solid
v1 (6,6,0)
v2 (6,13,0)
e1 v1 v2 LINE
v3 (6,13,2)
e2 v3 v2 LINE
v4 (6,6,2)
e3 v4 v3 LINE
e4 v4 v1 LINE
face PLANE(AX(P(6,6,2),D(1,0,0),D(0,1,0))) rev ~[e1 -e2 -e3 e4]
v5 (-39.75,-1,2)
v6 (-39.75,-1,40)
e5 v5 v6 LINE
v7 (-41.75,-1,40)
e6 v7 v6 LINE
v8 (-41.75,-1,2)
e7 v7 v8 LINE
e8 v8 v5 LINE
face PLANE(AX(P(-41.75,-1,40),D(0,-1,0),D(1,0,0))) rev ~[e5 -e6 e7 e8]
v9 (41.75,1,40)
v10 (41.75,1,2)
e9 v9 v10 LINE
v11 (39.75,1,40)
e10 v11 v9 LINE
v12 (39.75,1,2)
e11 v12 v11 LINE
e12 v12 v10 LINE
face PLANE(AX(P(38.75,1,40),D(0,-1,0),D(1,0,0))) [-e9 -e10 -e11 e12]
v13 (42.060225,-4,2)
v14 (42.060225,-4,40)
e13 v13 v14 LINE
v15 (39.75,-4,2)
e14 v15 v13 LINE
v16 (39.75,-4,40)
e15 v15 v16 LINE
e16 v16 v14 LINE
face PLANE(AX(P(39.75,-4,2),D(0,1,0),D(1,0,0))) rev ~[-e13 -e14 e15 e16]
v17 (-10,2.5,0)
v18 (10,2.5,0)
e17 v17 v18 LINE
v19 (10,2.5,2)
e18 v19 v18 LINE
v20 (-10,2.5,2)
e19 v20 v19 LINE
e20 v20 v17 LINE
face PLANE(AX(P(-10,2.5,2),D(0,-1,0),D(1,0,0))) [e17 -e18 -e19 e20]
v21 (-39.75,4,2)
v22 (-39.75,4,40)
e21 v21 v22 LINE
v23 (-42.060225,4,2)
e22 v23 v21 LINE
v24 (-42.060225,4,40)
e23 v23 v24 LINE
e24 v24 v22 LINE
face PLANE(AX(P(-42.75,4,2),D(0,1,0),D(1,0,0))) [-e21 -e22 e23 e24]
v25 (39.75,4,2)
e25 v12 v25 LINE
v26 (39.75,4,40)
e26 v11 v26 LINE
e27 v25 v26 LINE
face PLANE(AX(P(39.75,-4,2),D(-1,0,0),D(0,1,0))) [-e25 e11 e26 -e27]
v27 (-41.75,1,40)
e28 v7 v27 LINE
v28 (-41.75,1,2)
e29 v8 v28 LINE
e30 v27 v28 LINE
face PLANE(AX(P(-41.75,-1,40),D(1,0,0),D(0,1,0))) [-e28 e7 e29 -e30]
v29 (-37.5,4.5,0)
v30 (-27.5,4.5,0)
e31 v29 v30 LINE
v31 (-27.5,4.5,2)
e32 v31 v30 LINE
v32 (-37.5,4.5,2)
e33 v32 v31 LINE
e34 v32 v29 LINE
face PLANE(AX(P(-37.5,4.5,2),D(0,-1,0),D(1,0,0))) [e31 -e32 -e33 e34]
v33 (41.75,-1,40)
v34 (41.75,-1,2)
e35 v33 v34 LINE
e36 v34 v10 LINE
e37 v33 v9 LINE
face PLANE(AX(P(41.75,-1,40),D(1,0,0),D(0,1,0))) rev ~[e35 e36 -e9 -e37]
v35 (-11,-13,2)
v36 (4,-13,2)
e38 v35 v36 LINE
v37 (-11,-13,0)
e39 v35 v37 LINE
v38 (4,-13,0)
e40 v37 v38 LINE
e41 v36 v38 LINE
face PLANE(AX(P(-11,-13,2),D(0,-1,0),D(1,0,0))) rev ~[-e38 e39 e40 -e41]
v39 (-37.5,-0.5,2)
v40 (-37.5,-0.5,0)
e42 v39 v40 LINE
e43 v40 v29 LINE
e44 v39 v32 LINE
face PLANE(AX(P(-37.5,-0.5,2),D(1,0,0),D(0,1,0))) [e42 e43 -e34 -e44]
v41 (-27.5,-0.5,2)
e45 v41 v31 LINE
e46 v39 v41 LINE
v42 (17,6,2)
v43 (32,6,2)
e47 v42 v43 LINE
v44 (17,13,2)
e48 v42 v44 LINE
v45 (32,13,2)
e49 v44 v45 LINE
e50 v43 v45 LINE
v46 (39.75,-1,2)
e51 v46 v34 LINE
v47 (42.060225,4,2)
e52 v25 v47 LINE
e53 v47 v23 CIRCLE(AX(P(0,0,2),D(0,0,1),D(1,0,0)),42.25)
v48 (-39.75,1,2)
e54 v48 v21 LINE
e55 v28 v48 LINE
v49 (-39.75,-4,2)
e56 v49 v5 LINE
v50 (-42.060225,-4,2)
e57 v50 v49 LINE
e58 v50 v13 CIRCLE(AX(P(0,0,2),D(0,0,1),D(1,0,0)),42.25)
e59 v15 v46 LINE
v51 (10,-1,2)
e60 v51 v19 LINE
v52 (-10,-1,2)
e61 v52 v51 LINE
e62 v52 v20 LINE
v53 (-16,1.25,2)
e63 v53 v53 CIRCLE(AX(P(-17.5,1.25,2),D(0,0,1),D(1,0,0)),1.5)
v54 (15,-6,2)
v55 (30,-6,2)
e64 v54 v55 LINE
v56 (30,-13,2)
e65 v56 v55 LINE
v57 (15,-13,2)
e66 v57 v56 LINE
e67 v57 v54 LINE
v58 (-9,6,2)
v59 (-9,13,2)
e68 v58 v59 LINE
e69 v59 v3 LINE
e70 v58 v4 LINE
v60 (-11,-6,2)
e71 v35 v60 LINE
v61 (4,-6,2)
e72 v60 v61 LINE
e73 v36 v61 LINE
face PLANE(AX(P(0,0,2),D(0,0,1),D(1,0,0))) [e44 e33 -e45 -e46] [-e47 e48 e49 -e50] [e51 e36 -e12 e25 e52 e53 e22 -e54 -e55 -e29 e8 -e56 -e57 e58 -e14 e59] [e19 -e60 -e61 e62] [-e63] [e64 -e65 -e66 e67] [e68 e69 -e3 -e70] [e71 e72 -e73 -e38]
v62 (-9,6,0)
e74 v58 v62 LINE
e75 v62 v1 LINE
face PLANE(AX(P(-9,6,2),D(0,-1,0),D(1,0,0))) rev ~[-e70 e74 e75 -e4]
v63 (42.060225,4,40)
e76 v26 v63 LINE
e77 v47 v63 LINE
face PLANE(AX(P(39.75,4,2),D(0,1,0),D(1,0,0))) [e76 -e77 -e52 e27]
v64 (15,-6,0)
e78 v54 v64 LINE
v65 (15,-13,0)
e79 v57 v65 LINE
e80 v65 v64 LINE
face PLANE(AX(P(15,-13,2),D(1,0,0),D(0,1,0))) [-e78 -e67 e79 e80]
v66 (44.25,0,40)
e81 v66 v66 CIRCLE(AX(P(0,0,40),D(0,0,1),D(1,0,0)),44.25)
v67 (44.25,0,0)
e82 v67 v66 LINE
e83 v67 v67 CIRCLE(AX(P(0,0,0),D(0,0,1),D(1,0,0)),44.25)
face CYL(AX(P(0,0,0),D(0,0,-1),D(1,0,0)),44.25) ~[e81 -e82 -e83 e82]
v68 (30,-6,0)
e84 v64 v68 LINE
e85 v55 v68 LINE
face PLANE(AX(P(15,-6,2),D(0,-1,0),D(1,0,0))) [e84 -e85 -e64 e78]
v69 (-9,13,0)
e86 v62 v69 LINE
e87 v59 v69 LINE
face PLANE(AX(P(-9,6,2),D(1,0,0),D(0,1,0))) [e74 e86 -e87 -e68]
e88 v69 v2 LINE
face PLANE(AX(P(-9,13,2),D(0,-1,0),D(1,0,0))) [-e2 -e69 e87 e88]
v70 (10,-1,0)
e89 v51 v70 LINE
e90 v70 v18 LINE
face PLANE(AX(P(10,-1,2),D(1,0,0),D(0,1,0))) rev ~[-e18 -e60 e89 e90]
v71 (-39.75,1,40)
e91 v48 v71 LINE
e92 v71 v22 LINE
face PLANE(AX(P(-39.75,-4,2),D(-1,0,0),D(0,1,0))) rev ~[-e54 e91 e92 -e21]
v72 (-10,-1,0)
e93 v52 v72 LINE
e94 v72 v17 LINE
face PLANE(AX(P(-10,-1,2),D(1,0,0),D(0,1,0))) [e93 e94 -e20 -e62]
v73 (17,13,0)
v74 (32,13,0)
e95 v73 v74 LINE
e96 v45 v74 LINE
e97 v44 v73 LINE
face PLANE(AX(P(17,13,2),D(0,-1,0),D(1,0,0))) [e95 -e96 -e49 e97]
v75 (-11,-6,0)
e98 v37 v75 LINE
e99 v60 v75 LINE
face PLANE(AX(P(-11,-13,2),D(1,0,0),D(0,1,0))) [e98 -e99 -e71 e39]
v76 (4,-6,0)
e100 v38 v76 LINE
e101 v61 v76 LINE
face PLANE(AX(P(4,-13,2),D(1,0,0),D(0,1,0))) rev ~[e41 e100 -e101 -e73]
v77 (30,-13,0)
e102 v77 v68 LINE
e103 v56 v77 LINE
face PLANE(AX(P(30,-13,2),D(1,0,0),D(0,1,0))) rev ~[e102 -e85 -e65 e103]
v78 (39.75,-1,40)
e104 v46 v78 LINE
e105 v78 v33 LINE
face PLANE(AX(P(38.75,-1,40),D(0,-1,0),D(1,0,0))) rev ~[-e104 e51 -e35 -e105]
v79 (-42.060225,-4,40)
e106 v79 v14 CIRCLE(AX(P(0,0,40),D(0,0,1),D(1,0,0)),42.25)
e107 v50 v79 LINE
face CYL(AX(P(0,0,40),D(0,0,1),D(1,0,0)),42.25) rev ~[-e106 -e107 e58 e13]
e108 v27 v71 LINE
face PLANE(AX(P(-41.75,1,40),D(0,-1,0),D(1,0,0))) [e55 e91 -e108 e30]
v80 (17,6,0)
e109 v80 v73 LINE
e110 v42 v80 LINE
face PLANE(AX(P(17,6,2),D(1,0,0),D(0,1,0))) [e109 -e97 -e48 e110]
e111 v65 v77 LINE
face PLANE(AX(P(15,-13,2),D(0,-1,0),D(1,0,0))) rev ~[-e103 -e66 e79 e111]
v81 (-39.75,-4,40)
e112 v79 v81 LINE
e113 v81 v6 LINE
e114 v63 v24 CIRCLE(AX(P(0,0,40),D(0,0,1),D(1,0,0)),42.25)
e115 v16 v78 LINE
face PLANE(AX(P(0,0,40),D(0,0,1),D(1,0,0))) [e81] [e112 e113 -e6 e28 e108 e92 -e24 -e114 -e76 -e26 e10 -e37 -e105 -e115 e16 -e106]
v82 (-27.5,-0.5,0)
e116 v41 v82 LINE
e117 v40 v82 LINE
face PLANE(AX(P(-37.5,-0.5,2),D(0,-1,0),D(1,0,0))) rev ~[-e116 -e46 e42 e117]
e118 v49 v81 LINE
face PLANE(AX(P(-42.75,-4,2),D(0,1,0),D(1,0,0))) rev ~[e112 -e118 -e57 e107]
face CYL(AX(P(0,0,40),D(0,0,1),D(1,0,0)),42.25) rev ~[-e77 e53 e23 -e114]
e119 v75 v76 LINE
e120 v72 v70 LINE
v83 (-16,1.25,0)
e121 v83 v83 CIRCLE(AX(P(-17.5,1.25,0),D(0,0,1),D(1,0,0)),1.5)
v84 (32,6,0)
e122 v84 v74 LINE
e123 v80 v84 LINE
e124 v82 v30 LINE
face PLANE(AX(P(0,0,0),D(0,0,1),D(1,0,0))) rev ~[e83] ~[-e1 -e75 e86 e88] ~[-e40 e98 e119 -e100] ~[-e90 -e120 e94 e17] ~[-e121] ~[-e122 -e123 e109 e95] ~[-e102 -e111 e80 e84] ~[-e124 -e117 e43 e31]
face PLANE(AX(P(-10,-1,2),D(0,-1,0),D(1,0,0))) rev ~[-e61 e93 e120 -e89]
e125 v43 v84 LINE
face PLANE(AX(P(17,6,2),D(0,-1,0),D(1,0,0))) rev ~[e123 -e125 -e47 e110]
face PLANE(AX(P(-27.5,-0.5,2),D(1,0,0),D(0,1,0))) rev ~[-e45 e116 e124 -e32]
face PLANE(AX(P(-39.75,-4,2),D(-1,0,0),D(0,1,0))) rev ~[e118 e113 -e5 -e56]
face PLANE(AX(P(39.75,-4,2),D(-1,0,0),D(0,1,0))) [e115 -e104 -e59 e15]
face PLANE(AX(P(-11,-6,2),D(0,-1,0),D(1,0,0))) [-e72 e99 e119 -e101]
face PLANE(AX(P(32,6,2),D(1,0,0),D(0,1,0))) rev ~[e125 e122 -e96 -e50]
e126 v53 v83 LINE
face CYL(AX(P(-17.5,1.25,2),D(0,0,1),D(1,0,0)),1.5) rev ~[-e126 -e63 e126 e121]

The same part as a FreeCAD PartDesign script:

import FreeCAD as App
import Part
import Sketcher

V = App.Vector

doc = App.newDocument("Part")
body = doc.addObject("PartDesign::Body", "Body")

sketch1 = doc.addObject("Sketcher::SketchObject", "Sketch")
body.addObject(sketch1)
sketch1.AttachmentSupport = (doc.XY_Plane, [""])
sketch1.MapMode = "FlatFace"
sketch1.addGeometry(Part.Circle(V(0, 0, 0), V(0, 0, 1), 44), False)
sketch1.addConstraint([
    Sketcher.Constraint("Coincident", 0, 3, -1, 1),
    Sketcher.Constraint("Diameter", 0, 88.5),
])
pad1 = doc.addObject("PartDesign::Pad", "Pad")
body.addObject(pad1)
pad1.Profile = sketch1
pad1.Length = 40

sketch2 = doc.addObject("Sketcher::SketchObject", "Sketch001")
body.addObject(sketch2)
sketch2.AttachmentSupport = (doc.XY_Plane, [""])
sketch2.MapMode = "FlatFace"
sketch2.AttachmentOffset = App.Placement(V(0, 0, 40), App.Rotation())
sketch2.addGeometry(Part.Circle(V(0, 0, 0), V(0, 0, 1), 42), False)
sketch2.addConstraint([
    Sketcher.Constraint("Coincident", 0, 3, -1, 1),
    Sketcher.Constraint("Diameter", 0, 84.5),
])
pocket1 = doc.addObject("PartDesign::Pocket", "Pocket")
body.addObject(pocket1)
pocket1.Profile = sketch2
pocket1.Length = 38

sketch3 = doc.addObject("Sketcher::SketchObject", "Sketch002")
body.addObject(sketch3)
sketch3.AttachmentSupport = (doc.XY_Plane, [""])
sketch3.MapMode = "FlatFace"
sketch3.AttachmentOffset = App.Placement(V(0, 0, 2), App.Rotation())
sketch3.addGeometry([
    Part.LineSegment(V(-42.8, 4, 0), V(-42.8, -4, 0)),
    Part.LineSegment(V(-42.8, -4, 0), V(-39.8, -4, 0)),
    Part.LineSegment(V(-39.8, -4, 0), V(-39.8, 4, 0)),
    Part.LineSegment(V(-39.8, 4, 0), V(-42.8, 4, 0)),
    Part.LineSegment(V(39.8, 4, 0), V(39.8, -4, 0)),
    Part.LineSegment(V(39.8, -4, 0), V(42.8, -4, 0)),
    Part.LineSegment(V(42.8, -4, 0), V(42.8, 4, 0)),
    Part.LineSegment(V(42.8, 4, 0), V(39.8, 4, 0)),
], False)
sketch3.addConstraint([
    Sketcher.Constraint("Coincident", 0, 2, 1, 1),
    Sketcher.Constraint("Coincident", 1, 2, 2, 1),
    Sketcher.Constraint("Coincident", 2, 2, 3, 1),
    Sketcher.Constraint("Coincident", 3, 2, 0, 1),
    Sketcher.Constraint("Coincident", 4, 2, 5, 1),
    Sketcher.Constraint("Coincident", 5, 2, 6, 1),
    Sketcher.Constraint("Coincident", 6, 2, 7, 1),
    Sketcher.Constraint("Coincident", 7, 2, 4, 1),
    Sketcher.Constraint("Vertical", 0),
    Sketcher.Constraint("Horizontal", 1),
    Sketcher.Constraint("Vertical", 2),
    Sketcher.Constraint("Horizontal", 3),
    Sketcher.Constraint("Vertical", 4),
    Sketcher.Constraint("Horizontal", 5),
    Sketcher.Constraint("Vertical", 6),
    Sketcher.Constraint("Horizontal", 7),
    Sketcher.Constraint("Symmetric", 2, 2, 4, 2, -1, 1),
    Sketcher.Constraint("Symmetric", 0, 2, 6, 2, -1, 1),
    Sketcher.Constraint("Horizontal", 1, 2, 4, 2),
    Sketcher.Constraint("DistanceX", 1, 1, 1, 2, 3.0),
    Sketcher.Constraint("DistanceY", 0, 2, 0, 1, 8.0),
    Sketcher.Constraint("DistanceX", 1, 2, 4, 2, 79.5),
])
pad2 = doc.addObject("PartDesign::Pad", "Pad001")
body.addObject(pad2)
pad2.Profile = sketch3
pad2.Length = 38

sketch4 = doc.addObject("Sketcher::SketchObject", "Sketch003")
body.addObject(sketch4)
sketch4.AttachmentSupport = (doc.XY_Plane, [""])
sketch4.MapMode = "FlatFace"
sketch4.AttachmentOffset = App.Placement(V(0, 0, 40), App.Rotation())
sketch4.addGeometry([
    Part.LineSegment(V(-41.8, 1, 0), V(-41.8, -1, 0)),
    Part.LineSegment(V(-41.8, -1, 0), V(-38.8, -1, 0)),
    Part.LineSegment(V(-38.8, -1, 0), V(-38.8, 1, 0)),
    Part.LineSegment(V(-38.8, 1, 0), V(-41.8, 1, 0)),
    Part.LineSegment(V(38.8, 1, 0), V(38.8, -1, 0)),
    Part.LineSegment(V(38.8, -1, 0), V(41.8, -1, 0)),
    Part.LineSegment(V(41.8, -1, 0), V(41.8, 1, 0)),
    Part.LineSegment(V(41.8, 1, 0), V(38.8, 1, 0)),
], False)
sketch4.addConstraint([
    Sketcher.Constraint("Coincident", 0, 2, 1, 1),
    Sketcher.Constraint("Coincident", 1, 2, 2, 1),
    Sketcher.Constraint("Coincident", 2, 2, 3, 1),
    Sketcher.Constraint("Coincident", 3, 2, 0, 1),
    Sketcher.Constraint("Coincident", 4, 2, 5, 1),
    Sketcher.Constraint("Coincident", 5, 2, 6, 1),
    Sketcher.Constraint("Coincident", 6, 2, 7, 1),
    Sketcher.Constraint("Coincident", 7, 2, 4, 1),
    Sketcher.Constraint("Vertical", 0),
    Sketcher.Constraint("Horizontal", 1),
    Sketcher.Constraint("Vertical", 2),
    Sketcher.Constraint("Horizontal", 3),
    Sketcher.Constraint("Vertical", 4),
    Sketcher.Constraint("Horizontal", 5),
    Sketcher.Constraint("Vertical", 6),
    Sketcher.Constraint("Horizontal", 7),
    Sketcher.Constraint("Symmetric", 2, 2, 4, 2, -1, 1),
    Sketcher.Constraint("Symmetric", 0, 2, 6, 2, -1, 1),
    Sketcher.Constraint("Horizontal", 1, 2, 4, 2),
    Sketcher.Constraint("DistanceX", 1, 1, 1, 2, 3.0),
    Sketcher.Constraint("DistanceY", 0, 2, 0, 1, 2.0),
    Sketcher.Constraint("DistanceX", 1, 2, 4, 2, 77.5),
])
pocket2 = doc.addObject("PartDesign::Pocket", "Pocket001")
body.addObject(pocket2)
pocket2.Profile = sketch4
pocket2.Length = 38

sketch5 = doc.addObject("Sketcher::SketchObject", "Sketch004")
body.addObject(sketch5)
sketch5.AttachmentSupport = (doc.XY_Plane, [""])
sketch5.MapMode = "FlatFace"
sketch5.AttachmentOffset = App.Placement(V(0, 0, 2), App.Rotation())
sketch5.addGeometry([
    Part.Circle(V(-17.5, 1.2, 0), V(0, 0, 1), 1.5),
    Part.LineSegment(V(-10, 2.5, 0), V(-10, -1, 0)),
    Part.LineSegment(V(-10, -1, 0), V(10, -1, 0)),
    Part.LineSegment(V(10, -1, 0), V(10, 2.5, 0)),
    Part.LineSegment(V(10, 2.5, 0), V(-10, 2.5, 0)),
    Part.LineSegment(V(-37.5, 4.5, 0), V(-37.5, -0.5, 0)),
    Part.LineSegment(V(-37.5, -0.5, 0), V(-27.5, -0.5, 0)),
    Part.LineSegment(V(-27.5, -0.5, 0), V(-27.5, 4.5, 0)),
    Part.LineSegment(V(-27.5, 4.5, 0), V(-37.5, 4.5, 0)),
    Part.LineSegment(V(-11, -6, 0), V(-11, -13, 0)),
    Part.LineSegment(V(-11, -13, 0), V(4, -13, 0)),
    Part.LineSegment(V(4, -13, 0), V(4, -6, 0)),
    Part.LineSegment(V(4, -6, 0), V(-11, -6, 0)),
    Part.LineSegment(V(15, -6, 0), V(15, -13, 0)),
    Part.LineSegment(V(15, -13, 0), V(30, -13, 0)),
    Part.LineSegment(V(30, -13, 0), V(30, -6, 0)),
    Part.LineSegment(V(30, -6, 0), V(15, -6, 0)),
    Part.LineSegment(V(-9, 13, 0), V(-9, 6, 0)),
    Part.LineSegment(V(-9, 6, 0), V(6, 6, 0)),
    Part.LineSegment(V(6, 6, 0), V(6, 13, 0)),
    Part.LineSegment(V(6, 13, 0), V(-9, 13, 0)),
    Part.LineSegment(V(17, 13, 0), V(17, 6, 0)),
    Part.LineSegment(V(17, 6, 0), V(32, 6, 0)),
    Part.LineSegment(V(32, 6, 0), V(32, 13, 0)),
    Part.LineSegment(V(32, 13, 0), V(17, 13, 0)),
], False)
sketch5.addConstraint([
    Sketcher.Constraint("Coincident", 1, 2, 2, 1),
    Sketcher.Constraint("Coincident", 2, 2, 3, 1),
    Sketcher.Constraint("Coincident", 3, 2, 4, 1),
    Sketcher.Constraint("Coincident", 4, 2, 1, 1),
    Sketcher.Constraint("Coincident", 5, 2, 6, 1),
    Sketcher.Constraint("Coincident", 6, 2, 7, 1),
    Sketcher.Constraint("Coincident", 7, 2, 8, 1),
    Sketcher.Constraint("Coincident", 8, 2, 5, 1),
    Sketcher.Constraint("Coincident", 9, 2, 10, 1),
    Sketcher.Constraint("Coincident", 10, 2, 11, 1),
    Sketcher.Constraint("Coincident", 11, 2, 12, 1),
    Sketcher.Constraint("Coincident", 12, 2, 9, 1),
    Sketcher.Constraint("Coincident", 13, 2, 14, 1),
    Sketcher.Constraint("Coincident", 14, 2, 15, 1),
    Sketcher.Constraint("Coincident", 15, 2, 16, 1),
    Sketcher.Constraint("Coincident", 16, 2, 13, 1),
    Sketcher.Constraint("Coincident", 17, 2, 18, 1),
    Sketcher.Constraint("Coincident", 18, 2, 19, 1),
    Sketcher.Constraint("Coincident", 19, 2, 20, 1),
    Sketcher.Constraint("Coincident", 20, 2, 17, 1),
    Sketcher.Constraint("Coincident", 21, 2, 22, 1),
    Sketcher.Constraint("Coincident", 22, 2, 23, 1),
    Sketcher.Constraint("Coincident", 23, 2, 24, 1),
    Sketcher.Constraint("Coincident", 24, 2, 21, 1),
    Sketcher.Constraint("Vertical", 1),
    Sketcher.Constraint("Horizontal", 2),
    Sketcher.Constraint("Vertical", 3),
    Sketcher.Constraint("Horizontal", 4),
    Sketcher.Constraint("Vertical", 5),
    Sketcher.Constraint("Horizontal", 6),
    Sketcher.Constraint("Vertical", 7),
    Sketcher.Constraint("Horizontal", 8),
    Sketcher.Constraint("Vertical", 9),
    Sketcher.Constraint("Horizontal", 10),
    Sketcher.Constraint("Vertical", 11),
    Sketcher.Constraint("Horizontal", 12),
    Sketcher.Constraint("Vertical", 13),
    Sketcher.Constraint("Horizontal", 14),
    Sketcher.Constraint("Vertical", 15),
    Sketcher.Constraint("Horizontal", 16),
    Sketcher.Constraint("Vertical", 17),
    Sketcher.Constraint("Horizontal", 18),
    Sketcher.Constraint("Vertical", 19),
    Sketcher.Constraint("Horizontal", 20),
    Sketcher.Constraint("Vertical", 21),
    Sketcher.Constraint("Horizontal", 22),
    Sketcher.Constraint("Vertical", 23),
    Sketcher.Constraint("Horizontal", 24),
    Sketcher.Constraint("Horizontal", 10, 2, 13, 2),
    Sketcher.Constraint("Horizontal", 12, 2, 15, 2),
    Sketcher.Constraint("Horizontal", 18, 2, 21, 2),
    Sketcher.Constraint("Horizontal", 20, 2, 23, 2),
    Sketcher.Constraint("Equal", 12, 14),
    Sketcher.Constraint("Equal", 16, 18),
    Sketcher.Constraint("Equal", 20, 22),
    Sketcher.Constraint("Equal", 15, 17),
    Sketcher.Constraint("Diameter", 0, 3.0),
    Sketcher.Constraint("DistanceX", 2, 1, 2, 2, 20.0),
    Sketcher.Constraint("DistanceX", 6, 1, 6, 2, 10.0),
    Sketcher.Constraint("DistanceX", 10, 1, 10, 2, 15.0),
    Sketcher.Constraint("DistanceY", 5, 2, 5, 1, 5.0),
    Sketcher.Constraint("DistanceY", 9, 2, 9, 1, 7.0),
    Sketcher.Constraint("DistanceY", 1, 2, 1, 1, 3.5),
    Sketcher.Constraint("DistanceX", 1, 2, -1, 1, 10.0),
    Sketcher.Constraint("DistanceY", 1, 2, -1, 1, 1.0),
    Sketcher.Constraint("DistanceX", 9, 2, -1, 1, 11.0),
    Sketcher.Constraint("DistanceY", 9, 2, -1, 1, 13.0),
    Sketcher.Constraint("DistanceX", -1, 1, 13, 2, 15.0),
    Sketcher.Constraint("DistanceX", 17, 2, -1, 1, 9.0),
    Sketcher.Constraint("DistanceY", -1, 1, 17, 2, 6.0),
    Sketcher.Constraint("DistanceX", -1, 1, 21, 2, 17.0),
    Sketcher.Constraint("DistanceX", 5, 2, 0, 3, 20.0),
    Sketcher.Constraint("DistanceY", 5, 2, 4, 2, 3.0),
    Sketcher.Constraint("DistanceX", 0, 3, -1, 1, 17.5),
    Sketcher.Constraint("DistanceY", -1, 1, 0, 3, 1.25),
])
pocket3 = doc.addObject("PartDesign::Pocket", "Pocket002")
body.addObject(pocket3)
pocket3.Profile = sketch5
pocket3.Length = 2

doc.recompute()
